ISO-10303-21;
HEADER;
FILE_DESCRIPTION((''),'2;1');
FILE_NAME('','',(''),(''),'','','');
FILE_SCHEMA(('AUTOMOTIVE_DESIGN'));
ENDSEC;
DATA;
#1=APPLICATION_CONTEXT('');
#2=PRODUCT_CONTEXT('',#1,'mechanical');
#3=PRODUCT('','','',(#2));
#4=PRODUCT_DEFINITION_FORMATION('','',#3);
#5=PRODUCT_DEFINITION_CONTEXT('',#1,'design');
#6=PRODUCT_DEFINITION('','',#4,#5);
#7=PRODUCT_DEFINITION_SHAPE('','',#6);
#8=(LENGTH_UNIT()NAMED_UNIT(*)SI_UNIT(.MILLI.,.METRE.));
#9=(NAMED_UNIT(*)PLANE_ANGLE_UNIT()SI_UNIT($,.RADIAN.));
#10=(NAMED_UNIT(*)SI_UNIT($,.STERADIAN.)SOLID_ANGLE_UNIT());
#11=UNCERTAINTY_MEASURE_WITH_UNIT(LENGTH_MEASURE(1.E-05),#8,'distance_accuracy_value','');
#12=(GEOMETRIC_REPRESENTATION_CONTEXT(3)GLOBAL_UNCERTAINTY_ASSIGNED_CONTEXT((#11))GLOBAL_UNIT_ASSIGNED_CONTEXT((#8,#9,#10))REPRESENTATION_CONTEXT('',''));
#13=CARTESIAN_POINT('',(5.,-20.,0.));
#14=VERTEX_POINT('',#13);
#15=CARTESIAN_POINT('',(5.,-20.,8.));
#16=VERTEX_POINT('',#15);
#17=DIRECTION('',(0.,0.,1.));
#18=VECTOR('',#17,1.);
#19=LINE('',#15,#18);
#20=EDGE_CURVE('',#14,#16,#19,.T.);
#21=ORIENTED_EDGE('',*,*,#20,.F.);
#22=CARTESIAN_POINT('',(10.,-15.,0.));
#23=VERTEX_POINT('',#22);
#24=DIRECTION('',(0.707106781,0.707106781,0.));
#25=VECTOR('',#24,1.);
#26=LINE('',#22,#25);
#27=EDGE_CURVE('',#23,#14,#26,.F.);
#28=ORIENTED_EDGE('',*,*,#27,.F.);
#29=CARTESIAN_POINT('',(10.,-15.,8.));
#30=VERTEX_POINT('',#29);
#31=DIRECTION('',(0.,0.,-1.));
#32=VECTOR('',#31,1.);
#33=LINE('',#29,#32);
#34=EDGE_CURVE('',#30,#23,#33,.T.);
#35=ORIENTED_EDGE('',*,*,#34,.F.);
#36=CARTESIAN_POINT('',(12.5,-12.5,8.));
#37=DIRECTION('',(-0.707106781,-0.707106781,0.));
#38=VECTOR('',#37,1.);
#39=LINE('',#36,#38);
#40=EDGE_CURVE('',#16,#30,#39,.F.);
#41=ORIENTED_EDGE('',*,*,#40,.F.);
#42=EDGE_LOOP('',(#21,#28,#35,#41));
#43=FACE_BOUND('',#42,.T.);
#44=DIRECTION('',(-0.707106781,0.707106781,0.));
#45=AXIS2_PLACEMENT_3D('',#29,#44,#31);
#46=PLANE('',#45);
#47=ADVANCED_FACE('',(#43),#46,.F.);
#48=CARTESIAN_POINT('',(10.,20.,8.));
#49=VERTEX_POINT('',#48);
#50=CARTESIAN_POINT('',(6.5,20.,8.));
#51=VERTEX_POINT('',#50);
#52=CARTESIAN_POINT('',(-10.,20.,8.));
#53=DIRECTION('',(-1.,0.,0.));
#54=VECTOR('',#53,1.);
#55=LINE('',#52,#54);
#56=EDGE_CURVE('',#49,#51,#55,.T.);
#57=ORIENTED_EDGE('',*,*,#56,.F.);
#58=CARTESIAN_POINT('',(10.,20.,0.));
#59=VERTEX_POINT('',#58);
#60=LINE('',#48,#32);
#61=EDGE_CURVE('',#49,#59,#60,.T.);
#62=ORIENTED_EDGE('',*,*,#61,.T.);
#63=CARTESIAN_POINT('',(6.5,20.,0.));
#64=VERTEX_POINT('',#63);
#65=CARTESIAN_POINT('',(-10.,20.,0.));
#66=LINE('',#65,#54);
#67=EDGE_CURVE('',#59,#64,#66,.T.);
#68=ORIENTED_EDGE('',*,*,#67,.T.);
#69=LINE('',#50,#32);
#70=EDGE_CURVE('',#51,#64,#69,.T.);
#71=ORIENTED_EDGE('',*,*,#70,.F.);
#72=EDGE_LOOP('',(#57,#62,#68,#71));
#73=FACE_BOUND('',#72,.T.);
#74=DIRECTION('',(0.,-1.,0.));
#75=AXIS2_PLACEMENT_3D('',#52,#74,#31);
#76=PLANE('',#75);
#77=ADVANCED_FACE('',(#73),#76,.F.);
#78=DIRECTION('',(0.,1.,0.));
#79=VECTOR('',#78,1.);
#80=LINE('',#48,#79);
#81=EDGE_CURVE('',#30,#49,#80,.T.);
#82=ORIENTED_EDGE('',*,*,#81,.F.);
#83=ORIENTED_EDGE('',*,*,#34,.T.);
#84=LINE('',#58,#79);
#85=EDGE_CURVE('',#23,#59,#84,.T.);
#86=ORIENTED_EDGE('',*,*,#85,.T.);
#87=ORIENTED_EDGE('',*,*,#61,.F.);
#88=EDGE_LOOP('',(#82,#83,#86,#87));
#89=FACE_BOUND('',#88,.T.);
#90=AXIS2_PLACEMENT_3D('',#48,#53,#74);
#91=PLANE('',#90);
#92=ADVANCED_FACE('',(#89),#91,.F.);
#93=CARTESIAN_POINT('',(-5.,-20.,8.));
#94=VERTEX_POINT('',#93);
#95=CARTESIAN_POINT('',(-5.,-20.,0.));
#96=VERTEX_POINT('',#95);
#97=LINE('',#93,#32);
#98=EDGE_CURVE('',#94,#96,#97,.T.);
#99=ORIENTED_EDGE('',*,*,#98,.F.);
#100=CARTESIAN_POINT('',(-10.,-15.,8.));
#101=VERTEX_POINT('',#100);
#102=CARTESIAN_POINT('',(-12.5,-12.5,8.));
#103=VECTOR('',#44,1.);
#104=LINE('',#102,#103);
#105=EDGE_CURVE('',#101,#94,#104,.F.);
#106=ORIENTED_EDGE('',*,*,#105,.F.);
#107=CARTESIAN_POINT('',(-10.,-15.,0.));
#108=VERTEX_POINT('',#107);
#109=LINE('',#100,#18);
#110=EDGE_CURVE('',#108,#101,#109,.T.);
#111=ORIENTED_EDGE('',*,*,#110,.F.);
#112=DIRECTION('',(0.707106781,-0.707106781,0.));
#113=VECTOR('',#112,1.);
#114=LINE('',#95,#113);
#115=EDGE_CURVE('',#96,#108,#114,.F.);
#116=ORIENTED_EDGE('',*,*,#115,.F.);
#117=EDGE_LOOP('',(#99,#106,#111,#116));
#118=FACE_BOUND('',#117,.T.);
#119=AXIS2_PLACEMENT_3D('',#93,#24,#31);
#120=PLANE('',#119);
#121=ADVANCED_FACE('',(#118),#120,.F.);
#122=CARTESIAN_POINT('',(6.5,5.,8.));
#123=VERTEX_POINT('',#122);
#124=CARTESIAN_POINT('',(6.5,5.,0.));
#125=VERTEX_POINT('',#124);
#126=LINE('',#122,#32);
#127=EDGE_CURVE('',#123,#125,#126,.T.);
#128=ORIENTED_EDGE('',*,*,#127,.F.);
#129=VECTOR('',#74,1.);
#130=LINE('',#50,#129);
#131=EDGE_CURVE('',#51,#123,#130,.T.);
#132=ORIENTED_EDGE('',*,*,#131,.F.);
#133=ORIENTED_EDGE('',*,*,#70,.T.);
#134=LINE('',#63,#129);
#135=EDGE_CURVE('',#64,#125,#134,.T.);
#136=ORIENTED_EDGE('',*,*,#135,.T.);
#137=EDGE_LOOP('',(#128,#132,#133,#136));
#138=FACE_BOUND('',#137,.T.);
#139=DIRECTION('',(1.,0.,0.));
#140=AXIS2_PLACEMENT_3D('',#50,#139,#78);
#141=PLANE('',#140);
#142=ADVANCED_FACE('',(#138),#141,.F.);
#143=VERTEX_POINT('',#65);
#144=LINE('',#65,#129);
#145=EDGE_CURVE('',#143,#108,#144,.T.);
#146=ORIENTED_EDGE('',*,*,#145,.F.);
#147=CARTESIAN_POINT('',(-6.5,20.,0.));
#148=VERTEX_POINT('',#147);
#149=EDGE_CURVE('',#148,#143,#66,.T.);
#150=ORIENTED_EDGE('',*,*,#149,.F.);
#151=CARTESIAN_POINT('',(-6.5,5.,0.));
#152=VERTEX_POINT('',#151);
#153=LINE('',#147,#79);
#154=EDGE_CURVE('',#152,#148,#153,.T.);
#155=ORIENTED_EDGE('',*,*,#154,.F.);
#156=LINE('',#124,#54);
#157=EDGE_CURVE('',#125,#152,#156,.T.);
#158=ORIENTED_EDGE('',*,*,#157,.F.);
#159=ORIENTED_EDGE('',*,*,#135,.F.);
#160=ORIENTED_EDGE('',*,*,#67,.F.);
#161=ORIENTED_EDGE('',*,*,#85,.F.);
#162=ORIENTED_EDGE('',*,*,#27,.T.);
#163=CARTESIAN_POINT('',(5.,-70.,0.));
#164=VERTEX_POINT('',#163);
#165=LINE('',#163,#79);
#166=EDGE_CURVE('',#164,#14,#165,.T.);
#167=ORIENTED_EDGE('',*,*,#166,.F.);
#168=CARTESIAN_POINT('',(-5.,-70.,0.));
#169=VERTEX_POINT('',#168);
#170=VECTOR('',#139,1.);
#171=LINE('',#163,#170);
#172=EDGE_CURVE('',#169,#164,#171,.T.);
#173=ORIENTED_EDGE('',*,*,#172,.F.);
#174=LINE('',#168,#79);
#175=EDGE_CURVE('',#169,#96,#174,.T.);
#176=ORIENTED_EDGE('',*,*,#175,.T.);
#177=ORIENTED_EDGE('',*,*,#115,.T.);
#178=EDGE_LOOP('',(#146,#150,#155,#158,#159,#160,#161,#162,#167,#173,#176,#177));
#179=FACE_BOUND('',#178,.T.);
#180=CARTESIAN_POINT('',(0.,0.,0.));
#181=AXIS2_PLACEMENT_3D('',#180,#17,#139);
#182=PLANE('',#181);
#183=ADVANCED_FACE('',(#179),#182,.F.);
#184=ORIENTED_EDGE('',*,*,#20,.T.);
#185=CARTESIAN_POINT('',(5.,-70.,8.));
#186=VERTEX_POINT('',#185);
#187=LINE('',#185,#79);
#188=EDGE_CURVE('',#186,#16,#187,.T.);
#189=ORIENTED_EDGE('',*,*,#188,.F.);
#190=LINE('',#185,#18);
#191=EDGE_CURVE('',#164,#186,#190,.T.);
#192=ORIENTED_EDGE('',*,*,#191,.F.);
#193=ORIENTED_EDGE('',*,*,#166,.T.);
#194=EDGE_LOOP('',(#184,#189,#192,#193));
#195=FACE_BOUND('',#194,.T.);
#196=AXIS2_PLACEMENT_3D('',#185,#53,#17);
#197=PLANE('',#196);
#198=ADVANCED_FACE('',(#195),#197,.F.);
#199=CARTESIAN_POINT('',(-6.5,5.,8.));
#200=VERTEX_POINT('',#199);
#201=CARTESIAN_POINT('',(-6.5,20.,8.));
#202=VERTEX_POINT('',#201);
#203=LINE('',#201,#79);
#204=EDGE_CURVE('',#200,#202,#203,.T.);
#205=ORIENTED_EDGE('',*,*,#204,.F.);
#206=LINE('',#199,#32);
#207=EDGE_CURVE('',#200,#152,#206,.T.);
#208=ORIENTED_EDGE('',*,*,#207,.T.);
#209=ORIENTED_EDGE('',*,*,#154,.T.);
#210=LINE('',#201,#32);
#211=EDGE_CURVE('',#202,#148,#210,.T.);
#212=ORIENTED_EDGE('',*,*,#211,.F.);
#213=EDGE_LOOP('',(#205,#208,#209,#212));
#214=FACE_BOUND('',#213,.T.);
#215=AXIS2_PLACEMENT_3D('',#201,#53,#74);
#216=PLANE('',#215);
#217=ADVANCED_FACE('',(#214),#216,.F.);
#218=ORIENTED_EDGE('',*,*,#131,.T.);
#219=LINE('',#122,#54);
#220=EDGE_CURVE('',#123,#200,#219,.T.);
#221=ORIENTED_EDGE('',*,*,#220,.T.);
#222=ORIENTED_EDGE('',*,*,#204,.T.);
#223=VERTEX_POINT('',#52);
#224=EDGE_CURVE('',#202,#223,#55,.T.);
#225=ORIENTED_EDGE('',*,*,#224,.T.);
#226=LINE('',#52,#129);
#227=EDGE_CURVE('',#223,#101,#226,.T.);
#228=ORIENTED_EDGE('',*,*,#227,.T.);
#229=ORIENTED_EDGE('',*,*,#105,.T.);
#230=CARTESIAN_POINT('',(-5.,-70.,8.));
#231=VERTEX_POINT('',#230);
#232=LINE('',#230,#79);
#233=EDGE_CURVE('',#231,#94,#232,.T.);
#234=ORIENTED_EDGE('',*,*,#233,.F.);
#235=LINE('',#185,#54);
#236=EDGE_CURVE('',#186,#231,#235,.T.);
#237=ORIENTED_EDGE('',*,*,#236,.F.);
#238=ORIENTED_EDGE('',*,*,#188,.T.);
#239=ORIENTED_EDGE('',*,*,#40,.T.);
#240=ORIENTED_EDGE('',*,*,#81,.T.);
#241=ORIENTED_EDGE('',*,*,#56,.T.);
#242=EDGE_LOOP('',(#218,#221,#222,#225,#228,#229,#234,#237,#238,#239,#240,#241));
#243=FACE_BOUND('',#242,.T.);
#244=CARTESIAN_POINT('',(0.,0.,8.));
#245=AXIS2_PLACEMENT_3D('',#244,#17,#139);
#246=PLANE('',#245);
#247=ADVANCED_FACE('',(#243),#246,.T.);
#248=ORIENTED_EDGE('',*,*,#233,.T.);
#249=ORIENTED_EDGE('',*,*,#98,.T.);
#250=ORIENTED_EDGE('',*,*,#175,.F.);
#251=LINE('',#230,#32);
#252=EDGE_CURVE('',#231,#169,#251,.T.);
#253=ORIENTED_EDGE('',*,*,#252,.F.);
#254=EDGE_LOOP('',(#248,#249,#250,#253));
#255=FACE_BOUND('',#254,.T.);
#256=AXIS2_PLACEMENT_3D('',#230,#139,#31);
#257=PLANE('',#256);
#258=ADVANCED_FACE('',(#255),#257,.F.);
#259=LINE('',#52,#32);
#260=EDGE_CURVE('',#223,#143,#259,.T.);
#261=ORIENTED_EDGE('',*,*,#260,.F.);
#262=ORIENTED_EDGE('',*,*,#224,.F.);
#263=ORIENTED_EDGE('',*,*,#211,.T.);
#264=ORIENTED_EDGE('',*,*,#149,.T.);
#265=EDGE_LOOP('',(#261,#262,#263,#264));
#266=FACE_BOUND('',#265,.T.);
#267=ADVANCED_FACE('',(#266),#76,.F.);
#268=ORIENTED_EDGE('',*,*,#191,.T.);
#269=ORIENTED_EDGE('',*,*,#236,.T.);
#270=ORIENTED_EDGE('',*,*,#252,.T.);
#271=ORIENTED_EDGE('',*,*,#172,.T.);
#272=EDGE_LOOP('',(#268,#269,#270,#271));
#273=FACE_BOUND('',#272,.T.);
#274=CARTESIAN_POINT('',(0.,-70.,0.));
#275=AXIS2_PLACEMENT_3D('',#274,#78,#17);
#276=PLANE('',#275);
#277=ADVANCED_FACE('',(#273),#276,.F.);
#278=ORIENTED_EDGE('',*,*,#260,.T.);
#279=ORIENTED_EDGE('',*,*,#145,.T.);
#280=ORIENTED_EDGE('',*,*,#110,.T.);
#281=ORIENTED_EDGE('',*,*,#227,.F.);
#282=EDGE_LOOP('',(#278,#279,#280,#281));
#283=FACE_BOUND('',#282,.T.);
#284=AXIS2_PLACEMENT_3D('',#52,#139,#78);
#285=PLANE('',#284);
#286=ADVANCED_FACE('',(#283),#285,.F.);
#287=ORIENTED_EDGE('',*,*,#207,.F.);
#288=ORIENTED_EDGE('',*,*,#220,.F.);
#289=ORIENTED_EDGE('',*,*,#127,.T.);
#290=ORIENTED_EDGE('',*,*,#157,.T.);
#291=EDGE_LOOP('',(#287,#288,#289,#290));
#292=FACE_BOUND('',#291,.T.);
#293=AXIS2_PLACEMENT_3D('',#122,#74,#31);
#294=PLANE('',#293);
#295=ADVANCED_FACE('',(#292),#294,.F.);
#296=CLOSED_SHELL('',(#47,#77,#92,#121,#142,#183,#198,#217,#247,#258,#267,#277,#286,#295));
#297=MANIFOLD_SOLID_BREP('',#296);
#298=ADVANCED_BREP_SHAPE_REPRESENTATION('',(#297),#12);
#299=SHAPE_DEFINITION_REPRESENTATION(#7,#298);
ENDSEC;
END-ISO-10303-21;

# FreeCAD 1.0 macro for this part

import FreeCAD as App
import Part
import Sketcher

V = App.Vector
Q = App.Units.Quantity


def edges_at(feature, points):
    """Names of the edges that pass closest to the given points."""
    edges = feature.Shape.Edges
    near = lambda p: min(range(len(edges)), key=lambda i: edges[i].distToShape(Part.Vertex(*p))[0])
    return sorted({f"Edge{near(p) + 1}" for p in points})


def add_polygon(sketch, points):
    """Adds a closed chain of lines whose ends are joined by coincident constraints."""
    first, n = sketch.GeometryCount, len(points)
    for a, b in zip(points, points[1:] + points[:1]):
        sketch.addGeometry(Part.LineSegment(App.Vector(*a, 0), App.Vector(*b, 0)), False)
    for i in range(n):
        sketch.addConstraint(Sketcher.Constraint("Coincident", first + i, 2, first + (i + 1) % n, 1))

doc = App.newDocument("Part")
body = doc.addObject("PartDesign::Body", "Body")

# Sketch on XY plane
sketch1 = doc.addObject("Sketcher::SketchObject", "Sketch")
body.addObject(sketch1)
sketch1.AttachmentSupport = (doc.XY_Plane, [""])
sketch1.MapMode = "FlatFace"
add_polygon(sketch1, [(-10, 20), (-10, -20), (10, -20), (10, 20)])  # lines 0-3
sketch1.addConstraint([
    Sketcher.Constraint("Vertical", 0),
    Sketcher.Constraint("Horizontal", 1),
    Sketcher.Constraint("Vertical", 2),
    Sketcher.Constraint("Horizontal", 3),
    Sketcher.Constraint("Symmetric", 0, 2, 2, 2, -1, 1),
    Sketcher.Constraint("DistanceX", 1, 1, 1, 2, Q("20 mm")),
    Sketcher.Constraint("DistanceY", 0, 2, 0, 1, Q("40 mm")),
])
pad1 = doc.addObject("PartDesign::Pad", "Pad")
body.addObject(pad1)
pad1.Profile = sketch1
pad1.Length = 8

# Sketch on XY plane
sketch2 = doc.addObject("Sketcher::SketchObject", "Sketch001")
body.addObject(sketch2)
sketch2.AttachmentSupport = (doc.XY_Plane, [""])
sketch2.MapMode = "FlatFace"
add_polygon(sketch2, [(6, 20), (6, 5), (-6, 5), (-6, 20)])  # lines 0-3
sketch2.addConstraint([
    Sketcher.Constraint("Vertical", 0),
    Sketcher.Constraint("Horizontal", 1),
    Sketcher.Constraint("Vertical", 2),
    Sketcher.Constraint("Horizontal", 3),
    Sketcher.Constraint("DistanceX", 1, 2, 1, 1, Q("13 mm")),
    Sketcher.Constraint("DistanceY", 0, 2, 0, 1, Q("15 mm")),
    Sketcher.Constraint("DistanceY", -1, 1, 0, 2, Q("5 mm")),
    Sketcher.Constraint("DistanceX", -1, 1, 0, 2, Q("6.5 mm")),
])
pocket1 = doc.addObject("PartDesign::Pocket", "Pocket")
body.addObject(pocket1)
pocket1.Profile = sketch2
pocket1.Length = 8
pocket1.Reversed = True
doc.recompute()

chamfer = doc.addObject("PartDesign::Chamfer", "Chamfer")
body.addObject(chamfer)
chamfer.Base = (pocket1, edges_at(pocket1, [(-10, -20, 4)]))
chamfer.Size = 5
doc.recompute()

chamfer2 = doc.addObject("PartDesign::Chamfer", "Chamfer001")
body.addObject(chamfer2)
chamfer2.Base = (chamfer, edges_at(chamfer, [(10, -20, 4)]))
chamfer2.Size = 5

# Sketch on XZ plane
sketch3 = doc.addObject("Sketcher::SketchObject", "Sketch002")
body.addObject(sketch3)
sketch3.AttachmentSupport = (doc.XZ_Plane, [""])
sketch3.MapMode = "FlatFace"
sketch3.AttachmentOffset = App.Placement(V(0, 0, 20), App.Rotation())
add_polygon(sketch3, [(-5, 8), (-5, 0), (5, 0), (5, 8)])  # lines 0-3
sketch3.addConstraint([
    Sketcher.Constraint("Vertical", 0),
    Sketcher.Constraint("Horizontal", 1),
    Sketcher.Constraint("Vertical", 2),
    Sketcher.Constraint("Horizontal", 3),
    Sketcher.Constraint("Symmetric", 0, 2, 1, 2, -1, 1),
    Sketcher.Constraint("DistanceX", 1, 1, 1, 2, Q("10 mm")),
    Sketcher.Constraint("DistanceY", 0, 2, 0, 1, Q("8 mm")),
])
pad2 = doc.addObject("PartDesign::Pad", "Pad001")
body.addObject(pad2)
pad2.Profile = sketch3
pad2.Length = 50

doc.recompute()
